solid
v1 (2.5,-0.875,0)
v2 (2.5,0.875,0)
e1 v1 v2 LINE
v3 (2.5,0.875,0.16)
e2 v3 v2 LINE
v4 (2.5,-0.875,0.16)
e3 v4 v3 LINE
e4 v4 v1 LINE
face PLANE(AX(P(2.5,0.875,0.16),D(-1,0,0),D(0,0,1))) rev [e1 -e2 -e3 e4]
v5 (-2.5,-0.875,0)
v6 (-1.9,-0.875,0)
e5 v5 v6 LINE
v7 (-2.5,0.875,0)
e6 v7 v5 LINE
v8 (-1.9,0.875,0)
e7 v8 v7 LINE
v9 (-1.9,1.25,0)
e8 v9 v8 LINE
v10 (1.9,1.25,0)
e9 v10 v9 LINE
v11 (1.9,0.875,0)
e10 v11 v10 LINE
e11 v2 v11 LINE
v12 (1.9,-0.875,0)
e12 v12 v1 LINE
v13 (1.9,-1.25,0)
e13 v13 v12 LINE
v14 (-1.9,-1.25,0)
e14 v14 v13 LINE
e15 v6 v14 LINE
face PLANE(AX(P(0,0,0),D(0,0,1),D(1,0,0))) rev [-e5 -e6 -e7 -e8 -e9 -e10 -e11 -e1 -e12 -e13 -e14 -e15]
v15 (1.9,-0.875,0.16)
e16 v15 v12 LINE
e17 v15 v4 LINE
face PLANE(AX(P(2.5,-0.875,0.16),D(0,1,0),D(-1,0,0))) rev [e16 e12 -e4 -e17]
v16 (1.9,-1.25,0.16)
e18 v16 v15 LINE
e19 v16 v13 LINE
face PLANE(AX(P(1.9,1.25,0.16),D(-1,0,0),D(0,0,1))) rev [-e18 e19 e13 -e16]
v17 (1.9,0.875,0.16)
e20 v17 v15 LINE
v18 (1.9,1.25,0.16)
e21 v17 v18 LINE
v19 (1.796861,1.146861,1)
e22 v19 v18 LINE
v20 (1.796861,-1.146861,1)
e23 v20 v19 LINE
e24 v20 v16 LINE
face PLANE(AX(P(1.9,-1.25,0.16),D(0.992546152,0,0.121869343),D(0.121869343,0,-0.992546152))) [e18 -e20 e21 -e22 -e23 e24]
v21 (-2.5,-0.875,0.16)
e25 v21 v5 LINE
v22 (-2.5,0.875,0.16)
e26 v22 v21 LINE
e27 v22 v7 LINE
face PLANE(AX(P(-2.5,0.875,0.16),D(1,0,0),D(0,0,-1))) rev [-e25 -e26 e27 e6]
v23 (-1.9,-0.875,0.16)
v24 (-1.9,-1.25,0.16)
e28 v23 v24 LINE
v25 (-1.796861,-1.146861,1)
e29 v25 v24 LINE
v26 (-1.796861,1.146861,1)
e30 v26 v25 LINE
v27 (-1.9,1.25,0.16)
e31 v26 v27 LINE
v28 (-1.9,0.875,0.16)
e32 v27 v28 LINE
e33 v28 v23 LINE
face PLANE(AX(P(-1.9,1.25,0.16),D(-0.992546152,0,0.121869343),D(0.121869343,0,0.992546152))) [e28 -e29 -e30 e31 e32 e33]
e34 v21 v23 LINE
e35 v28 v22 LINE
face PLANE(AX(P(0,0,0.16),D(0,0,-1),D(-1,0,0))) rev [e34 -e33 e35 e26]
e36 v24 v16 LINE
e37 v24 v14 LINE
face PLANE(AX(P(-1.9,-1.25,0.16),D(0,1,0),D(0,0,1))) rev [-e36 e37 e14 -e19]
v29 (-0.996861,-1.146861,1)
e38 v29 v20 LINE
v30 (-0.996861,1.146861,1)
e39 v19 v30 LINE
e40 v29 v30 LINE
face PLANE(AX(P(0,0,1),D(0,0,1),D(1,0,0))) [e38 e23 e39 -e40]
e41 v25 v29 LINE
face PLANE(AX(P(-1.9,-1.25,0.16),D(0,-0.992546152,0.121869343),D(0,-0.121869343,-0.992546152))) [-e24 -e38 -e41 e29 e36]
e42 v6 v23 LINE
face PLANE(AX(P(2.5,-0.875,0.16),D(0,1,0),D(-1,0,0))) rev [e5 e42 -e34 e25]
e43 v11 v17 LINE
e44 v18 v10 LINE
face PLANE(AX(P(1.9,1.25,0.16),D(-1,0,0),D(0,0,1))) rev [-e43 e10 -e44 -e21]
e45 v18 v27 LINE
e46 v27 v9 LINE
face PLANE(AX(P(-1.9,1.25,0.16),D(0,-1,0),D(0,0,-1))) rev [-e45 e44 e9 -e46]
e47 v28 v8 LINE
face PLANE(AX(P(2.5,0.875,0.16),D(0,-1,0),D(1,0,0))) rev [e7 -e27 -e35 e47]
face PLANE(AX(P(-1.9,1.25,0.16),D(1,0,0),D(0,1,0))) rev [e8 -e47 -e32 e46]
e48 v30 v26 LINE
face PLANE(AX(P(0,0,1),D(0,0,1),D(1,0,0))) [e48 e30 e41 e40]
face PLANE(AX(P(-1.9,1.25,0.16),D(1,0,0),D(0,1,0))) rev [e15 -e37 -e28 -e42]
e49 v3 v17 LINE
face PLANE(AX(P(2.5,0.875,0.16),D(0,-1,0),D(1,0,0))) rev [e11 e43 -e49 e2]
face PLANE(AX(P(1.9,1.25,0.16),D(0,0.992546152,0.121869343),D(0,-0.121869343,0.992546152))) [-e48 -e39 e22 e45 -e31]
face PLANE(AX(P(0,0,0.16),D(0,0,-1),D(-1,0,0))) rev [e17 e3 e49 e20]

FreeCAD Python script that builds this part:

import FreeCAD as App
import Part
import Sketcher
from FreeCAD import Vector
Q = App.Units.Quantity


def add_polygon(sketch, points):
    """Adds a closed chain of lines whose ends are joined by coincident constraints."""
    first, n = sketch.GeometryCount, len(points)
    for a, b in zip(points, points[1:] + points[:1]):
        sketch.addGeometry(Part.LineSegment(App.Vector(*a, 0), App.Vector(*b, 0)), False)
    for i in range(n):
        sketch.addConstraint(Sketcher.Constraint("Coincident", first + i, 2, first + (i + 1) % n, 1))

doc = App.newDocument("Part")
params = doc.addObject("Spreadsheet::Sheet", "Params")
for row, (alias, value) in enumerate([
    ("sketch1_width", "3.8 mm"),
    ("sketch1_height", "2.5 mm"),
    ("pad1_length", "0.16 mm"),
    ("sketch2_width", "3.8 mm"),
    ("sketch2_height", "2.5 mm"),
    ("pad2_length", "0.84 mm"),
    ("pad2_taper", "-7 deg"),
    ("sketch3_width", "5 mm"),
    ("sketch3_height", "1.75 mm"),
    ("pad3_length", "0.16 mm"),
], start=1):
    params.set(f"A{row}", alias)
    params.set(f"B{row}", "=" + value)
    params.setAlias(f"B{row}", alias)

body = doc.addObject("PartDesign::Body", "Body")

# Sketch on XY plane
sketch1 = body.newObject("Sketcher::SketchObject", "Sketch")
sketch1.AttachmentSupport = (doc.getObject("XY_Plane"), [""])
sketch1.MapMode = "FlatFace"
add_polygon(sketch1, [(-1.9, 1.2), (-1.9, -1.2), (1.9, -1.2), (1.9, 1.2)])  # lines 0-3
sketch1.addConstraint(Sketcher.Constraint("Vertical", 0))
sketch1.addConstraint(Sketcher.Constraint("Horizontal", 1))
sketch1.addConstraint(Sketcher.Constraint("Vertical", 2))
sketch1.addConstraint(Sketcher.Constraint("Horizontal", 3))
sketch1.addConstraint(Sketcher.Constraint("Symmetric", 0, 2, 2, 2, -1, 1))
sketch1.addConstraint(Sketcher.Constraint("DistanceX", 1, 1, 1, 2, Q("3.8 mm")))
sketch1.addConstraint(Sketcher.Constraint("DistanceY", 0, 2, 0, 1, Q("2.5 mm")))
sketch1.setExpression("Constraints[9]", "Params.sketch1_width")
sketch1.setExpression("Constraints[10]", "Params.sketch1_height")
pad1 = body.newObject("PartDesign::Pad", "Pad")
pad1.Profile = sketch1
pad1.setExpression("Length", "Params.pad1_length")

# Sketch on XY plane
sketch2 = body.newObject("Sketcher::SketchObject", "Sketch001")
sketch2.AttachmentSupport = (doc.getObject("XY_Plane"), [""])
sketch2.MapMode = "FlatFace"
sketch2.AttachmentOffset = App.Placement(Vector(0, 0, 0.16), App.Rotation())
add_polygon(sketch2, [(-1.9, 1.2), (-1.9, -1.2), (1.9, -1.2), (1.9, 1.2)])  # lines 0-3
sketch2.addConstraint(Sketcher.Constraint("Vertical", 0))
sketch2.addConstraint(Sketcher.Constraint("Horizontal", 1))
sketch2.addConstraint(Sketcher.Constraint("Vertical", 2))
sketch2.addConstraint(Sketcher.Constraint("Horizontal", 3))
sketch2.addConstraint(Sketcher.Constraint("Symmetric", 0, 2, 2, 2, -1, 1))
sketch2.addConstraint(Sketcher.Constraint("DistanceX", 1, 1, 1, 2, Q("3.8 mm")))
sketch2.addConstraint(Sketcher.Constraint("DistanceY", 0, 2, 0, 1, Q("2.5 mm")))
sketch2.setExpression("Constraints[9]", "Params.sketch2_width")
sketch2.setExpression("Constraints[10]", "Params.sketch2_height")
pad2 = body.newObject("PartDesign::Pad", "Pad001")
pad2.Profile = sketch2
pad2.setExpression("Length", "Params.pad2_length")
pad2.setExpression("TaperAngle", "Params.pad2_taper")

# Sketch on XY plane
sketch3 = body.newObject("Sketcher::SketchObject", "Sketch002")
sketch3.AttachmentSupport = (doc.getObject("XY_Plane"), [""])
sketch3.MapMode = "FlatFace"
add_polygon(sketch3, [(-2.5, 0.9), (-2.5, -0.9), (2.5, -0.9), (2.5, 0.9)])  # lines 0-3
sketch3.addConstraint(Sketcher.Constraint("Vertical", 0))
sketch3.addConstraint(Sketcher.Constraint("Horizontal", 1))
sketch3.addConstraint(Sketcher.Constraint("Vertical", 2))
sketch3.addConstraint(Sketcher.Constraint("Horizontal", 3))
sketch3.addConstraint(Sketcher.Constraint("Symmetric", 0, 2, 2, 2, -1, 1))
sketch3.addConstraint(Sketcher.Constraint("DistanceX", 1, 1, 1, 2, Q("5 mm")))
sketch3.addConstraint(Sketcher.Constraint("DistanceY", 0, 2, 0, 1, Q("1.75 mm")))
sketch3.setExpression("Constraints[9]", "Params.sketch3_width")
sketch3.setExpression("Constraints[10]", "Params.sketch3_height")
pad3 = body.newObject("PartDesign::Pad", "Pad002")
pad3.Profile = sketch3
pad3.setExpression("Length", "Params.pad3_length")

doc.recompute()
